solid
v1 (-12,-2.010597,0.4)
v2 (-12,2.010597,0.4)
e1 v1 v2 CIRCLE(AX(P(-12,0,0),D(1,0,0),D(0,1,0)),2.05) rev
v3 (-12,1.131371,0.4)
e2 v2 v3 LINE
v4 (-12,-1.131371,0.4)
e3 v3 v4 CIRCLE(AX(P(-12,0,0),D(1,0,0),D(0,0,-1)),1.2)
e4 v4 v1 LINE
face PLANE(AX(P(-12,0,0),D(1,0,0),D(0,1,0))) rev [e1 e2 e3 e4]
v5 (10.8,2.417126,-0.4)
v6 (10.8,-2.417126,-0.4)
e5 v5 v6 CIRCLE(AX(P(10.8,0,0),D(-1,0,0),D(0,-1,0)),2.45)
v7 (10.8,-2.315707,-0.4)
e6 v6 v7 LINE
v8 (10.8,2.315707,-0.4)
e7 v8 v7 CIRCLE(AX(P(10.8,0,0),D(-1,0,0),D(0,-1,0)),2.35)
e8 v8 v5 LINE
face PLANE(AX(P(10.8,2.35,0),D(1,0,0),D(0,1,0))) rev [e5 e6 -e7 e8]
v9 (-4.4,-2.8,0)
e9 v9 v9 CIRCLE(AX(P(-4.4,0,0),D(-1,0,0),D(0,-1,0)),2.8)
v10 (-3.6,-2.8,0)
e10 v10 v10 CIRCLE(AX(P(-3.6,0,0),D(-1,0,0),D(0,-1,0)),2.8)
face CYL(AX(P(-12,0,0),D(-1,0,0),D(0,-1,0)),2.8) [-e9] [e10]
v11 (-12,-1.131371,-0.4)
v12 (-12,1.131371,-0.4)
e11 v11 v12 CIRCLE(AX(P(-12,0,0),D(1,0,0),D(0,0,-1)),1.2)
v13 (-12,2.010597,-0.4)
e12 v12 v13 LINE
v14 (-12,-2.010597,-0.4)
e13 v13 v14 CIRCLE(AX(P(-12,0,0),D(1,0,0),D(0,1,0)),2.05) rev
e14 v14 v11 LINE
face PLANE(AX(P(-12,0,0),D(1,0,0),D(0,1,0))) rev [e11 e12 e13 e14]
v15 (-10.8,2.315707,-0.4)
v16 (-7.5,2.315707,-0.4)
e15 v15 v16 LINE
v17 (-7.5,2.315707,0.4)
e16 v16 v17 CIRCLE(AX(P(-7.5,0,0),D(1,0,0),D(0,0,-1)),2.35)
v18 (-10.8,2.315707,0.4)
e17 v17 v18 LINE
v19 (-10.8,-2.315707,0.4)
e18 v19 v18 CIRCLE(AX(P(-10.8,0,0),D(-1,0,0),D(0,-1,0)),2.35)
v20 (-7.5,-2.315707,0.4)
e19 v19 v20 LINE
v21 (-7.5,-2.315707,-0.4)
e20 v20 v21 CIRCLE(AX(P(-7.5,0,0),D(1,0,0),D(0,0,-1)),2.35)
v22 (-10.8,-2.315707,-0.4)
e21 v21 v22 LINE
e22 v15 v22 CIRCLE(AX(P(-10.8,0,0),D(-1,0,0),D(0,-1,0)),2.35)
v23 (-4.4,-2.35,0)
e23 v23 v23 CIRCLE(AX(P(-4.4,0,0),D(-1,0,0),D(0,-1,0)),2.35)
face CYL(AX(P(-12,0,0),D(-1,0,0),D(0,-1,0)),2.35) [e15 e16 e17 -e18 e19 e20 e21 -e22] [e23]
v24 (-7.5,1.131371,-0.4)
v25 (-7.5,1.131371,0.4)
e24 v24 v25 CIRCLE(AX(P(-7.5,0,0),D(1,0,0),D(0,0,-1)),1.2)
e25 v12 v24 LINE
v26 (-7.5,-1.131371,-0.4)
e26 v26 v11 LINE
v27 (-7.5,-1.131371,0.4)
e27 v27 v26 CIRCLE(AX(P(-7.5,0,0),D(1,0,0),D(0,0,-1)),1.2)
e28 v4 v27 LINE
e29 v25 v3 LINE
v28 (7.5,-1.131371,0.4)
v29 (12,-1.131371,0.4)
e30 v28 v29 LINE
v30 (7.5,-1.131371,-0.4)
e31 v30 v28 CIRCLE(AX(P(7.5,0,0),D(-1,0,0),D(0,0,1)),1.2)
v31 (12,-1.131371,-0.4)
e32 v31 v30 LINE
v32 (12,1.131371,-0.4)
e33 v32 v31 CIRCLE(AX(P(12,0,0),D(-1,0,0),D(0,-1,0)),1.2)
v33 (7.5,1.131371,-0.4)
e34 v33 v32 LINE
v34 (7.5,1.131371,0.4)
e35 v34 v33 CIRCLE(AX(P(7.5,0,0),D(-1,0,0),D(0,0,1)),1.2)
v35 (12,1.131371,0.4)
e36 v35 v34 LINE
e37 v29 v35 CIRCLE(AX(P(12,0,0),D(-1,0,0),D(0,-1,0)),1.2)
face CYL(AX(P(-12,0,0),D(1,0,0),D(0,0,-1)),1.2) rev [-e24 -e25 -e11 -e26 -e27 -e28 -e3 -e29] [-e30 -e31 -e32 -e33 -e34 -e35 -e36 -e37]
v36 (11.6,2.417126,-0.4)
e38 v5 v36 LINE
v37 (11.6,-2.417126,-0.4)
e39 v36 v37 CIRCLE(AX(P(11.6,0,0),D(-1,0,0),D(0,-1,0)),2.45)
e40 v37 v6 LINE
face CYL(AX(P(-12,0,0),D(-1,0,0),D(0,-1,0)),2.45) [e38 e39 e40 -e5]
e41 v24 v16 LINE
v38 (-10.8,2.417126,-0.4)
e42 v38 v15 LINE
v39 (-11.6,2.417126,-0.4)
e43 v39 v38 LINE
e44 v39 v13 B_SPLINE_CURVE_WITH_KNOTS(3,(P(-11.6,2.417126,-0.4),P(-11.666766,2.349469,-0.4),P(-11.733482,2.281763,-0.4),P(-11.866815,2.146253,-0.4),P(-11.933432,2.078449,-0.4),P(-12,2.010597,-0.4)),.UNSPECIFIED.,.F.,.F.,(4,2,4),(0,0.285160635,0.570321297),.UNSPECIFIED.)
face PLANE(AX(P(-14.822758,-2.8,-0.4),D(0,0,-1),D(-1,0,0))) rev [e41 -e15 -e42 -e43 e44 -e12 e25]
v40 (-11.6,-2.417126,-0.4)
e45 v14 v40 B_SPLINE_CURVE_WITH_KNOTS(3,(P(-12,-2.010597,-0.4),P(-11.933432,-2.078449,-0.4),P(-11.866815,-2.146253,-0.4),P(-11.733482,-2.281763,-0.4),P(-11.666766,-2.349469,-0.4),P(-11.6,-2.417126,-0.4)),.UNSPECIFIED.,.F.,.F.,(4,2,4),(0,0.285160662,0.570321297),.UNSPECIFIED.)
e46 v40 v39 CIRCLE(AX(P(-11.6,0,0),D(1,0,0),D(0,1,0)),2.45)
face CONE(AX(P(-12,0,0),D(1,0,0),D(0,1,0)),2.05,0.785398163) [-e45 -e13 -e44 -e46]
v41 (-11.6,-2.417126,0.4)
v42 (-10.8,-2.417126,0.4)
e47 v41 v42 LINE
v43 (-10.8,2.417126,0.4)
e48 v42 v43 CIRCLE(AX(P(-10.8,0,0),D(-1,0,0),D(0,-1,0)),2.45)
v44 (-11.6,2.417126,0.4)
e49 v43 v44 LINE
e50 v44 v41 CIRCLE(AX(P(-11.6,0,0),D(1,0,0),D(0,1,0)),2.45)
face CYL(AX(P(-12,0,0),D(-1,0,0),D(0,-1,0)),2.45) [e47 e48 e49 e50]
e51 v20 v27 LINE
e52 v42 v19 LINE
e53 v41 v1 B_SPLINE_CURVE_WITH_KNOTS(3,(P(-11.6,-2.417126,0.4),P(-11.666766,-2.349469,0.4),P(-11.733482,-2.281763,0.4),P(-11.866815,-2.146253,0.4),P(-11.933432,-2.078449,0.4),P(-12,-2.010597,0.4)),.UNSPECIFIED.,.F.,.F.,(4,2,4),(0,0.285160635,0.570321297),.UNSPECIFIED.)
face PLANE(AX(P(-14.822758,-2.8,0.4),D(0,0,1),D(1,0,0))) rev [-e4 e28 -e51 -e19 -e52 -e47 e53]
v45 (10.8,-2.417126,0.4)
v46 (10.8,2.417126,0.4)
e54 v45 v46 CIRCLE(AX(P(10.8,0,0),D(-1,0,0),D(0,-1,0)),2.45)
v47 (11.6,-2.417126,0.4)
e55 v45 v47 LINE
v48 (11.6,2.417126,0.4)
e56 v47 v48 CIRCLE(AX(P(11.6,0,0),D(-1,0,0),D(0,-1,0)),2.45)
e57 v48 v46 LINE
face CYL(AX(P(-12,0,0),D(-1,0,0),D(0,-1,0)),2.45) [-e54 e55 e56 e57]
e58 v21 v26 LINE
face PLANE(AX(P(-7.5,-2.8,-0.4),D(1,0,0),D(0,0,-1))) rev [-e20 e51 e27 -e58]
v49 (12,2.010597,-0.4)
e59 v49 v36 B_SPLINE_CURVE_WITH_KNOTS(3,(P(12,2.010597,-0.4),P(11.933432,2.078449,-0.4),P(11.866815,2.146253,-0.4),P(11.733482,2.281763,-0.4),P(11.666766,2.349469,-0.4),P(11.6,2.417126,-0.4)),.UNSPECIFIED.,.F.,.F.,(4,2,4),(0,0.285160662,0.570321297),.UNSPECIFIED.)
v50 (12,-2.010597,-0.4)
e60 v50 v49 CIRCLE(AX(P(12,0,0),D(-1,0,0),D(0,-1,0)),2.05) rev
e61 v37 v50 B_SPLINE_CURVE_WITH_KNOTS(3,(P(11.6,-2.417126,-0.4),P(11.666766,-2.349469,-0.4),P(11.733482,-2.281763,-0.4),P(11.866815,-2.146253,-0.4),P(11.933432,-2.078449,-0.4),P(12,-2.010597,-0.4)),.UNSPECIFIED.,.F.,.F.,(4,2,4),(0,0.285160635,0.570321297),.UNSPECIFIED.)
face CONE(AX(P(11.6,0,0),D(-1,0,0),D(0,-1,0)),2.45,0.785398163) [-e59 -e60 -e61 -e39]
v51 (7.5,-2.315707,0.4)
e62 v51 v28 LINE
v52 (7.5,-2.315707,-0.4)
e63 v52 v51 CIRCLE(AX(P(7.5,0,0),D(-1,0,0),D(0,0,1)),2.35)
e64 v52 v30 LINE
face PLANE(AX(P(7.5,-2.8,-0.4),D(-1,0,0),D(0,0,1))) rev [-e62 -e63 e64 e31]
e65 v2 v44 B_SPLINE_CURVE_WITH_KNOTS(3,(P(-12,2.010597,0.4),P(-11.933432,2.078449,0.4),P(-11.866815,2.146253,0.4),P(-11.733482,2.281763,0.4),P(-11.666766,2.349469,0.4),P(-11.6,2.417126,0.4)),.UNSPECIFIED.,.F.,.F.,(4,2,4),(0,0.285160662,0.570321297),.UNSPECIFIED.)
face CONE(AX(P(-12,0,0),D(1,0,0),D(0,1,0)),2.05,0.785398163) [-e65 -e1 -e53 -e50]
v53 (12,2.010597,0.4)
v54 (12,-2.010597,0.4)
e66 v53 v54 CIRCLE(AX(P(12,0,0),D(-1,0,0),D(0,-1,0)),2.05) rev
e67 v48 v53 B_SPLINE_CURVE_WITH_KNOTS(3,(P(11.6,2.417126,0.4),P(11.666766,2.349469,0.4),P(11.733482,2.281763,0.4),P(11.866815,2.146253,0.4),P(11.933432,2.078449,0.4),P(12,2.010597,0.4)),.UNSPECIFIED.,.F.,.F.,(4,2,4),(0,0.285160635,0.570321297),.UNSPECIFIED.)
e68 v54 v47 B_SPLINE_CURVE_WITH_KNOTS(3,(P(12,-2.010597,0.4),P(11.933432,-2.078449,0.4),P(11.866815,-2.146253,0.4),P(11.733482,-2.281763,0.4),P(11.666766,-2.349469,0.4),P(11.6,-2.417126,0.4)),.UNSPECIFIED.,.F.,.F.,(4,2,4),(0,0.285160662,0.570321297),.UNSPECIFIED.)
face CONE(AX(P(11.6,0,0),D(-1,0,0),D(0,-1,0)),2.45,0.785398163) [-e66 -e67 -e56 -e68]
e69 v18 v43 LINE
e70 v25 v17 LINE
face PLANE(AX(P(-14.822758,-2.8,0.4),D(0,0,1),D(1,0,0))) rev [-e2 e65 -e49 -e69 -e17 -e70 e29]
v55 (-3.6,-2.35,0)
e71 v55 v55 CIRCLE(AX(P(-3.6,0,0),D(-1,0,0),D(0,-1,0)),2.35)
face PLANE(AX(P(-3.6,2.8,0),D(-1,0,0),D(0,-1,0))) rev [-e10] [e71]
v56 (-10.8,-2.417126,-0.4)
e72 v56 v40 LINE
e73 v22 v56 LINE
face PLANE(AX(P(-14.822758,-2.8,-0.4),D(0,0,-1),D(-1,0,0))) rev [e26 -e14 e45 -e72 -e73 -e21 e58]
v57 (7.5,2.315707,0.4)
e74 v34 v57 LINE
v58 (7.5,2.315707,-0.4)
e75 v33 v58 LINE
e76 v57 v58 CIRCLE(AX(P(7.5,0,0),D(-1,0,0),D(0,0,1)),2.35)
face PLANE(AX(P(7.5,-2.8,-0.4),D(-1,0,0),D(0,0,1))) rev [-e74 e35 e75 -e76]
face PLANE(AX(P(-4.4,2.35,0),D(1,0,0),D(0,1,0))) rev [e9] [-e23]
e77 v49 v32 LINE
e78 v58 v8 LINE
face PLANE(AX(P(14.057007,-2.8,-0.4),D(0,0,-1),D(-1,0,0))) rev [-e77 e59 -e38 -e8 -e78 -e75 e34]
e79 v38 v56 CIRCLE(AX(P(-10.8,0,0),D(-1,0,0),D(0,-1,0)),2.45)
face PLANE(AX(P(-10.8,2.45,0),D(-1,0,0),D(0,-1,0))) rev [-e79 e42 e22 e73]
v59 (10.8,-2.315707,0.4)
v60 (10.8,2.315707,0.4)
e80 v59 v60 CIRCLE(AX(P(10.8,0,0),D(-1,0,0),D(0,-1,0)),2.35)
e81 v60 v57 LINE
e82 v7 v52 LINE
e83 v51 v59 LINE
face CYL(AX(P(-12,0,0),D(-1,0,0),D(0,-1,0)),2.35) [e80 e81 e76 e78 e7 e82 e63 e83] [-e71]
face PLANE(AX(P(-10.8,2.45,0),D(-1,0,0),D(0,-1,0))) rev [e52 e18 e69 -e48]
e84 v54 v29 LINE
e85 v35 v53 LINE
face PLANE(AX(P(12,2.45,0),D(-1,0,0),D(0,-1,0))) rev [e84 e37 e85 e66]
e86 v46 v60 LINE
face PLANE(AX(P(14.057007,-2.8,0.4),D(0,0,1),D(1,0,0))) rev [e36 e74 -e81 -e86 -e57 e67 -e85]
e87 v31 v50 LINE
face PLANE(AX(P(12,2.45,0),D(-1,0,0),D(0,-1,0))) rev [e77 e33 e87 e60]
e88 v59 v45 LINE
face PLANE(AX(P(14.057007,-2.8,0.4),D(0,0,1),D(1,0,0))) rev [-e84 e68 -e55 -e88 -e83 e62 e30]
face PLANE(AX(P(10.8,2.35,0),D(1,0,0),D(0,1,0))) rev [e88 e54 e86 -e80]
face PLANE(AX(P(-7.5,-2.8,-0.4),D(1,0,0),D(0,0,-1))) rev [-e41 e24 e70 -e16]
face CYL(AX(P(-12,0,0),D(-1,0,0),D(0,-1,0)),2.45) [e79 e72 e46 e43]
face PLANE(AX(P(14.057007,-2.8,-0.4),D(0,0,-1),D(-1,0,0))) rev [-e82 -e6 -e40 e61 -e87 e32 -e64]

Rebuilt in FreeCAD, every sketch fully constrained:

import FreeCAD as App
import Part
import Sketcher


def edges_at(feature, points):
    """Names of the edges that pass closest to the given points."""
    edges = feature.Shape.Edges
    near = lambda p: min(range(len(edges)), key=lambda i: edges[i].distToShape(Part.Vertex(*p))[0])
    return sorted({f"Edge{near(p) + 1}" for p in points})


def add_polygon(sketch, points):
    """Adds a closed chain of lines whose ends are joined by coincident constraints."""
    first, n = sketch.GeometryCount, len(points)
    for a, b in zip(points, points[1:] + points[:1]):
        sketch.addGeometry(Part.LineSegment(App.Vector(*a, 0), App.Vector(*b, 0)), False)
    for i in range(n):
        sketch.addConstraint(Sketcher.Constraint("Coincident", first + i, 2, first + (i + 1) % n, 1))

doc = App.newDocument("Part")
body = doc.addObject("PartDesign::Body", "Body")

# Sketch on XY plane
sketch1 = body.newObject("Sketcher::SketchObject", "Sketch")
sketch1.AttachmentSupport = (doc.getObject("XY_Plane"), [""])
sketch1.MapMode = "FlatFace"
add_polygon(sketch1, [(-12, 0), (12, 0), (12, 2.45), (10.8, 2.45), (10.8, 2.35), (-3.6, 2.35), (-3.6, 2.8), (-4.4, 2.8), (-4.4, 2.35), (-10.8, 2.35), (-10.8, 2.45), (-12, 2.45)])  # lines 0-11
sketch1.addConstraint([
    Sketcher.Constraint("Horizontal", 0),
    Sketcher.Constraint("Vertical", 1),
    Sketcher.Constraint("Horizontal", 2),
    Sketcher.Constraint("Vertical", 3),
    Sketcher.Constraint("Horizontal", 4),
    Sketcher.Constraint("Vertical", 5),
    Sketcher.Constraint("Horizontal", 6),
    Sketcher.Constraint("Vertical", 7),
    Sketcher.Constraint("Horizontal", 8),
    Sketcher.Constraint("Vertical", 9),
    Sketcher.Constraint("Horizontal", 10),
    Sketcher.Constraint("Vertical", 11),
    Sketcher.Constraint("Symmetric", 0, 2, 11, 2, -1, 1),
    Sketcher.Constraint("Symmetric", 3, 2, 8, 2, -2),
    Sketcher.Constraint("Horizontal", 2, 2, 9, 2),
    Sketcher.Constraint("DistanceX", 0, 1, 0, 2, 24.0),
    Sketcher.Constraint("DistanceX", 2, 2, 2, 1, 1.2),
    Sketcher.Constraint("DistanceX", 4, 2, 4, 1, 14.4),
    Sketcher.Constraint("DistanceX", 6, 2, 6, 1, 0.8),
    Sketcher.Constraint("DistanceY", 3, 2, 3, 1, 0.1),
    Sketcher.Constraint("DistanceY", 1, 1, 1, 2, 2.45),
    Sketcher.Constraint("DistanceY", 5, 1, 5, 2, 0.45),
])
revolution = body.newObject("PartDesign::Revolution", "Revolution")
revolution.Profile = sketch1
revolution.ReferenceAxis = (sketch1, ["H_Axis"])
revolution.Angle = 360

# Sketch on XZ plane
sketch2 = body.newObject("Sketcher::SketchObject", "Sketch001")
sketch2.AttachmentSupport = (doc.getObject("XZ_Plane"), [""])
sketch2.MapMode = "FlatFace"
add_polygon(sketch2, [(-14.8, -0.4), (-14.8, 0.4), (-7.5, 0.4), (-7.5, -0.4)])  # lines 0-3
add_polygon(sketch2, [(7.5, -0.4), (7.5, 0.4), (14.1, 0.4), (14.1, -0.4)])  # lines 4-7
sketch2.addConstraint([
    Sketcher.Constraint("Vertical", 0),
    Sketcher.Constraint("Horizontal", 1),
    Sketcher.Constraint("Vertical", 2),
    Sketcher.Constraint("Horizontal", 3),
    Sketcher.Constraint("Vertical", 4),
    Sketcher.Constraint("Horizontal", 5),
    Sketcher.Constraint("Vertical", 6),
    Sketcher.Constraint("Horizontal", 7),
    Sketcher.Constraint("Symmetric", 2, 2, 4, 2, -1, 1),
    Sketcher.Constraint("Horizontal", 1, 2, 4, 2),
    Sketcher.Constraint("Horizontal", 3, 2, 6, 2),
    Sketcher.Constraint("DistanceY", 0, 1, 0, 2, 0.8),
    Sketcher.Constraint("DistanceX", 1, 2, 4, 2, 15.0),
    Sketcher.Constraint("DistanceX", 1, 1, 1, 2, 7.322758),
    Sketcher.Constraint("DistanceX", 5, 1, 5, 2, 6.557007),
])
pocket1 = body.newObject("PartDesign::Pocket", "Pocket")
pocket1.Profile = sketch2
pocket1.Type = "ThroughAll"
pocket1.Midplane = True
doc.recompute()

chamfer = body.newObject("PartDesign::Chamfer", "Chamfer")
chamfer.Base = (pocket1, edges_at(pocket1, [
    (-12, 0, 2.45),
    (12, 0, 2.45),
    (-12, 0, -2.45),
    (12, 0, -2.45),
]))
chamfer.Size = 0.4

# Sketch on YZ plane
sketch3 = body.newObject("Sketcher::SketchObject", "Sketch002")
sketch3.AttachmentSupport = (doc.getObject("YZ_Plane"), [""])
sketch3.MapMode = "FlatFace"
sketch3.AttachmentOffset = App.Placement(App.Vector(0, 0, 12), App.Rotation())
sketch3.addGeometry(Part.Circle(App.Vector(0, 0, 0), App.Vector(0, 0, 1), 1.2), False)
sketch3.addConstraint([
    Sketcher.Constraint("Coincident", 0, 3, -1, 1),
    Sketcher.Constraint("Diameter", 0, 2.4),
])
pocket2 = body.newObject("PartDesign::Pocket", "Pocket001")
pocket2.Profile = sketch3
pocket2.Type = "ThroughAll"
pocket2.Midplane = True

doc.recompute()
